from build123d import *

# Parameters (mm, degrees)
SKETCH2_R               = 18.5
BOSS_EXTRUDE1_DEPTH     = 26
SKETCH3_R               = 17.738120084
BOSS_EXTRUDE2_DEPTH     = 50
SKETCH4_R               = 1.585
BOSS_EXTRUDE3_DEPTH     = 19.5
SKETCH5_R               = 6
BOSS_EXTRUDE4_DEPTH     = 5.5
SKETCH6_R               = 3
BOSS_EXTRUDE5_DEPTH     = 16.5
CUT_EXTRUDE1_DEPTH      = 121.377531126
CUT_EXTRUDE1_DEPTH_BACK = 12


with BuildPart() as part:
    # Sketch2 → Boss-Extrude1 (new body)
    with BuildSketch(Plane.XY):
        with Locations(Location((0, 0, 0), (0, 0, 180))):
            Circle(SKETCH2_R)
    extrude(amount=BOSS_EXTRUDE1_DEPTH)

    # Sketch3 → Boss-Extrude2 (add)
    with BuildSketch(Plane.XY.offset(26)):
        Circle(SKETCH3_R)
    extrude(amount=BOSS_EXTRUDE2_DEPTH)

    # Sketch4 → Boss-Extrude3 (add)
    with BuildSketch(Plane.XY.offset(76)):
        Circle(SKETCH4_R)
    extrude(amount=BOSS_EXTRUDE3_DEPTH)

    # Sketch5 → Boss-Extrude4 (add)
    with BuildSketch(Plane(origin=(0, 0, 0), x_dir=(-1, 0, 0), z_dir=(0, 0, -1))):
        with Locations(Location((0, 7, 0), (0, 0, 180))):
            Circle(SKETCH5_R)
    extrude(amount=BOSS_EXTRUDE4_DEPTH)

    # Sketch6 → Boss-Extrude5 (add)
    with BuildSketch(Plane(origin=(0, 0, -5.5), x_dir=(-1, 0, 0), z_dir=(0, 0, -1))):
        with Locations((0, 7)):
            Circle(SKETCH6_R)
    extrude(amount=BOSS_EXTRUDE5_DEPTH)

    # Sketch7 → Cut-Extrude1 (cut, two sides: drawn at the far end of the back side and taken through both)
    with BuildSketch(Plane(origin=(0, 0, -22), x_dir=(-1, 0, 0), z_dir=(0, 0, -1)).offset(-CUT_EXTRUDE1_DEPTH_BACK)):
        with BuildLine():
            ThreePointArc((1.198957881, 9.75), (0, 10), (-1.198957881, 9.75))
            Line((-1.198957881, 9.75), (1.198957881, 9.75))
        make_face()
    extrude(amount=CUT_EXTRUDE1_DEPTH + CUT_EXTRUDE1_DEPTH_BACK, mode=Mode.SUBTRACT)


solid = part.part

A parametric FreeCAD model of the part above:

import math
import FreeCAD as App
import Part
import Sketcher
from FreeCAD import Vector
Q = App.Units.Quantity

doc = App.newDocument("Part")
body = doc.addObject("PartDesign::Body", "Body")

sketch1 = body.newObject("Sketcher::SketchObject", "Sketch")
sketch1.AttachmentSupport = (doc.getObject("XY_Plane"), [""])
sketch1.MapMode = "FlatFace"
sketch1.addGeometry(Part.Circle(Vector(0, 0, 0), Vector(0, 0, 1), 18), False)
sketch1.addConstraint([
    Sketcher.Constraint("Coincident", 0, 3, -1, 1),
    Sketcher.Constraint("Diameter", 0, Q("37 mm")),
])
pad1 = body.newObject("PartDesign::Pad", "Pad")
pad1.Profile = sketch1
pad1.Length = 26

sketch2 = body.newObject("Sketcher::SketchObject", "Sketch001")
sketch2.AttachmentSupport = (doc.getObject("XY_Plane"), [""])
sketch2.MapMode = "FlatFace"
sketch2.AttachmentOffset = App.Placement(Vector(0, 0, 26), App.Rotation())
sketch2.addGeometry(Part.Circle(Vector(0, 0, 0), Vector(0, 0, 1), 18), False)
sketch2.addConstraint([
    Sketcher.Constraint("Coincident", 0, 3, -1, 1),
    Sketcher.Constraint("Diameter", 0, Q("35.47624 mm")),
])
pad2 = body.newObject("PartDesign::Pad", "Pad001")
pad2.Profile = sketch2
pad2.Length = 50

sketch3 = body.newObject("Sketcher::SketchObject", "Sketch002")
sketch3.AttachmentSupport = (doc.getObject("XY_Plane"), [""])
sketch3.MapMode = "FlatFace"
sketch3.AttachmentOffset = App.Placement(Vector(0, 0, 76), App.Rotation())
sketch3.addGeometry(Part.Circle(Vector(0, 0, 0), Vector(0, 0, 1), 1.6), False)
sketch3.addConstraint([
    Sketcher.Constraint("Coincident", 0, 3, -1, 1),
    Sketcher.Constraint("Diameter", 0, Q("3.17 mm")),
])
pad3 = body.newObject("PartDesign::Pad", "Pad002")
pad3.Profile = sketch3
pad3.Length = 19.5

sketch4 = body.newObject("Sketcher::SketchObject", "Sketch003")
sketch4.AttachmentSupport = (doc.getObject("XY_Plane"), [""])
sketch4.MapMode = "FlatFace"
sketch4.addGeometry(Part.Circle(Vector(0, 7, 0), Vector(0, 0, 1), 6), False)
sketch4.addConstraint([
    Sketcher.Constraint("PointOnObject", 0, 3, -2),
    Sketcher.Constraint("Diameter", 0, Q("12 mm")),
    Sketcher.Constraint("DistanceY", -1, 1, 0, 3, Q("7 mm")),
])
pad4 = body.newObject("PartDesign::Pad", "Pad003")
pad4.Profile = sketch4
pad4.Length = 5.5
pad4.Reversed = True

sketch5 = body.newObject("Sketcher::SketchObject", "Sketch004")
sketch5.AttachmentSupport = (doc.getObject("XY_Plane"), [""])
sketch5.MapMode = "FlatFace"
sketch5.AttachmentOffset = App.Placement(Vector(0, 0, -5.5), App.Rotation())
sketch5.addGeometry(Part.Circle(Vector(0, 7, 0), Vector(0, 0, 1), 3), False)
sketch5.addConstraint([
    Sketcher.Constraint("PointOnObject", 0, 3, -2),
    Sketcher.Constraint("Diameter", 0, Q("6 mm")),
    Sketcher.Constraint("DistanceY", -1, 1, 0, 3, Q("7 mm")),
])
pad5 = body.newObject("PartDesign::Pad", "Pad004")
pad5.Profile = sketch5
pad5.Length = 16.5
pad5.Reversed = True

sketch6 = body.newObject("Sketcher::SketchObject", "Sketch005")
sketch6.AttachmentSupport = (doc.getObject("XY_Plane"), [""])
sketch6.MapMode = "FlatFace"
sketch6.AttachmentOffset = App.Placement(Vector(0, 0, -22), App.Rotation())
sketch6.addGeometry([
    Part.ArcOfCircle(Part.Circle(Vector(0, 7, 0), Vector(0, 0, 1), 3), math.radians(66), math.radians(114)),
    Part.LineSegment(Vector(1.2, 9.8, 0), Vector(-1.2, 9.8, 0)),
], False)
sketch6.addConstraint([
    Sketcher.Constraint("Coincident", 0, 1, 1, 1),
    Sketcher.Constraint("Coincident", 1, 2, 0, 2),
    Sketcher.Constraint("Horizontal", 1),
    Sketcher.Constraint("PointOnObject", 0, 3, -2),
    Sketcher.Constraint("Radius", 0, Q("3 mm")),
    Sketcher.Constraint("DistanceY", -1, 1, 0, 3, Q("7 mm")),
    Sketcher.Constraint("DistanceY", -1, 1, 0, 1, Q("9.75 mm")),
])
pocket1 = body.newObject("PartDesign::Pocket", "Pocket")
pocket1.Profile = sketch6
pocket1.Type = "TwoLengths"
pocket1.Length = 121.377531
pocket1.Length2 = 12

doc.recompute()
